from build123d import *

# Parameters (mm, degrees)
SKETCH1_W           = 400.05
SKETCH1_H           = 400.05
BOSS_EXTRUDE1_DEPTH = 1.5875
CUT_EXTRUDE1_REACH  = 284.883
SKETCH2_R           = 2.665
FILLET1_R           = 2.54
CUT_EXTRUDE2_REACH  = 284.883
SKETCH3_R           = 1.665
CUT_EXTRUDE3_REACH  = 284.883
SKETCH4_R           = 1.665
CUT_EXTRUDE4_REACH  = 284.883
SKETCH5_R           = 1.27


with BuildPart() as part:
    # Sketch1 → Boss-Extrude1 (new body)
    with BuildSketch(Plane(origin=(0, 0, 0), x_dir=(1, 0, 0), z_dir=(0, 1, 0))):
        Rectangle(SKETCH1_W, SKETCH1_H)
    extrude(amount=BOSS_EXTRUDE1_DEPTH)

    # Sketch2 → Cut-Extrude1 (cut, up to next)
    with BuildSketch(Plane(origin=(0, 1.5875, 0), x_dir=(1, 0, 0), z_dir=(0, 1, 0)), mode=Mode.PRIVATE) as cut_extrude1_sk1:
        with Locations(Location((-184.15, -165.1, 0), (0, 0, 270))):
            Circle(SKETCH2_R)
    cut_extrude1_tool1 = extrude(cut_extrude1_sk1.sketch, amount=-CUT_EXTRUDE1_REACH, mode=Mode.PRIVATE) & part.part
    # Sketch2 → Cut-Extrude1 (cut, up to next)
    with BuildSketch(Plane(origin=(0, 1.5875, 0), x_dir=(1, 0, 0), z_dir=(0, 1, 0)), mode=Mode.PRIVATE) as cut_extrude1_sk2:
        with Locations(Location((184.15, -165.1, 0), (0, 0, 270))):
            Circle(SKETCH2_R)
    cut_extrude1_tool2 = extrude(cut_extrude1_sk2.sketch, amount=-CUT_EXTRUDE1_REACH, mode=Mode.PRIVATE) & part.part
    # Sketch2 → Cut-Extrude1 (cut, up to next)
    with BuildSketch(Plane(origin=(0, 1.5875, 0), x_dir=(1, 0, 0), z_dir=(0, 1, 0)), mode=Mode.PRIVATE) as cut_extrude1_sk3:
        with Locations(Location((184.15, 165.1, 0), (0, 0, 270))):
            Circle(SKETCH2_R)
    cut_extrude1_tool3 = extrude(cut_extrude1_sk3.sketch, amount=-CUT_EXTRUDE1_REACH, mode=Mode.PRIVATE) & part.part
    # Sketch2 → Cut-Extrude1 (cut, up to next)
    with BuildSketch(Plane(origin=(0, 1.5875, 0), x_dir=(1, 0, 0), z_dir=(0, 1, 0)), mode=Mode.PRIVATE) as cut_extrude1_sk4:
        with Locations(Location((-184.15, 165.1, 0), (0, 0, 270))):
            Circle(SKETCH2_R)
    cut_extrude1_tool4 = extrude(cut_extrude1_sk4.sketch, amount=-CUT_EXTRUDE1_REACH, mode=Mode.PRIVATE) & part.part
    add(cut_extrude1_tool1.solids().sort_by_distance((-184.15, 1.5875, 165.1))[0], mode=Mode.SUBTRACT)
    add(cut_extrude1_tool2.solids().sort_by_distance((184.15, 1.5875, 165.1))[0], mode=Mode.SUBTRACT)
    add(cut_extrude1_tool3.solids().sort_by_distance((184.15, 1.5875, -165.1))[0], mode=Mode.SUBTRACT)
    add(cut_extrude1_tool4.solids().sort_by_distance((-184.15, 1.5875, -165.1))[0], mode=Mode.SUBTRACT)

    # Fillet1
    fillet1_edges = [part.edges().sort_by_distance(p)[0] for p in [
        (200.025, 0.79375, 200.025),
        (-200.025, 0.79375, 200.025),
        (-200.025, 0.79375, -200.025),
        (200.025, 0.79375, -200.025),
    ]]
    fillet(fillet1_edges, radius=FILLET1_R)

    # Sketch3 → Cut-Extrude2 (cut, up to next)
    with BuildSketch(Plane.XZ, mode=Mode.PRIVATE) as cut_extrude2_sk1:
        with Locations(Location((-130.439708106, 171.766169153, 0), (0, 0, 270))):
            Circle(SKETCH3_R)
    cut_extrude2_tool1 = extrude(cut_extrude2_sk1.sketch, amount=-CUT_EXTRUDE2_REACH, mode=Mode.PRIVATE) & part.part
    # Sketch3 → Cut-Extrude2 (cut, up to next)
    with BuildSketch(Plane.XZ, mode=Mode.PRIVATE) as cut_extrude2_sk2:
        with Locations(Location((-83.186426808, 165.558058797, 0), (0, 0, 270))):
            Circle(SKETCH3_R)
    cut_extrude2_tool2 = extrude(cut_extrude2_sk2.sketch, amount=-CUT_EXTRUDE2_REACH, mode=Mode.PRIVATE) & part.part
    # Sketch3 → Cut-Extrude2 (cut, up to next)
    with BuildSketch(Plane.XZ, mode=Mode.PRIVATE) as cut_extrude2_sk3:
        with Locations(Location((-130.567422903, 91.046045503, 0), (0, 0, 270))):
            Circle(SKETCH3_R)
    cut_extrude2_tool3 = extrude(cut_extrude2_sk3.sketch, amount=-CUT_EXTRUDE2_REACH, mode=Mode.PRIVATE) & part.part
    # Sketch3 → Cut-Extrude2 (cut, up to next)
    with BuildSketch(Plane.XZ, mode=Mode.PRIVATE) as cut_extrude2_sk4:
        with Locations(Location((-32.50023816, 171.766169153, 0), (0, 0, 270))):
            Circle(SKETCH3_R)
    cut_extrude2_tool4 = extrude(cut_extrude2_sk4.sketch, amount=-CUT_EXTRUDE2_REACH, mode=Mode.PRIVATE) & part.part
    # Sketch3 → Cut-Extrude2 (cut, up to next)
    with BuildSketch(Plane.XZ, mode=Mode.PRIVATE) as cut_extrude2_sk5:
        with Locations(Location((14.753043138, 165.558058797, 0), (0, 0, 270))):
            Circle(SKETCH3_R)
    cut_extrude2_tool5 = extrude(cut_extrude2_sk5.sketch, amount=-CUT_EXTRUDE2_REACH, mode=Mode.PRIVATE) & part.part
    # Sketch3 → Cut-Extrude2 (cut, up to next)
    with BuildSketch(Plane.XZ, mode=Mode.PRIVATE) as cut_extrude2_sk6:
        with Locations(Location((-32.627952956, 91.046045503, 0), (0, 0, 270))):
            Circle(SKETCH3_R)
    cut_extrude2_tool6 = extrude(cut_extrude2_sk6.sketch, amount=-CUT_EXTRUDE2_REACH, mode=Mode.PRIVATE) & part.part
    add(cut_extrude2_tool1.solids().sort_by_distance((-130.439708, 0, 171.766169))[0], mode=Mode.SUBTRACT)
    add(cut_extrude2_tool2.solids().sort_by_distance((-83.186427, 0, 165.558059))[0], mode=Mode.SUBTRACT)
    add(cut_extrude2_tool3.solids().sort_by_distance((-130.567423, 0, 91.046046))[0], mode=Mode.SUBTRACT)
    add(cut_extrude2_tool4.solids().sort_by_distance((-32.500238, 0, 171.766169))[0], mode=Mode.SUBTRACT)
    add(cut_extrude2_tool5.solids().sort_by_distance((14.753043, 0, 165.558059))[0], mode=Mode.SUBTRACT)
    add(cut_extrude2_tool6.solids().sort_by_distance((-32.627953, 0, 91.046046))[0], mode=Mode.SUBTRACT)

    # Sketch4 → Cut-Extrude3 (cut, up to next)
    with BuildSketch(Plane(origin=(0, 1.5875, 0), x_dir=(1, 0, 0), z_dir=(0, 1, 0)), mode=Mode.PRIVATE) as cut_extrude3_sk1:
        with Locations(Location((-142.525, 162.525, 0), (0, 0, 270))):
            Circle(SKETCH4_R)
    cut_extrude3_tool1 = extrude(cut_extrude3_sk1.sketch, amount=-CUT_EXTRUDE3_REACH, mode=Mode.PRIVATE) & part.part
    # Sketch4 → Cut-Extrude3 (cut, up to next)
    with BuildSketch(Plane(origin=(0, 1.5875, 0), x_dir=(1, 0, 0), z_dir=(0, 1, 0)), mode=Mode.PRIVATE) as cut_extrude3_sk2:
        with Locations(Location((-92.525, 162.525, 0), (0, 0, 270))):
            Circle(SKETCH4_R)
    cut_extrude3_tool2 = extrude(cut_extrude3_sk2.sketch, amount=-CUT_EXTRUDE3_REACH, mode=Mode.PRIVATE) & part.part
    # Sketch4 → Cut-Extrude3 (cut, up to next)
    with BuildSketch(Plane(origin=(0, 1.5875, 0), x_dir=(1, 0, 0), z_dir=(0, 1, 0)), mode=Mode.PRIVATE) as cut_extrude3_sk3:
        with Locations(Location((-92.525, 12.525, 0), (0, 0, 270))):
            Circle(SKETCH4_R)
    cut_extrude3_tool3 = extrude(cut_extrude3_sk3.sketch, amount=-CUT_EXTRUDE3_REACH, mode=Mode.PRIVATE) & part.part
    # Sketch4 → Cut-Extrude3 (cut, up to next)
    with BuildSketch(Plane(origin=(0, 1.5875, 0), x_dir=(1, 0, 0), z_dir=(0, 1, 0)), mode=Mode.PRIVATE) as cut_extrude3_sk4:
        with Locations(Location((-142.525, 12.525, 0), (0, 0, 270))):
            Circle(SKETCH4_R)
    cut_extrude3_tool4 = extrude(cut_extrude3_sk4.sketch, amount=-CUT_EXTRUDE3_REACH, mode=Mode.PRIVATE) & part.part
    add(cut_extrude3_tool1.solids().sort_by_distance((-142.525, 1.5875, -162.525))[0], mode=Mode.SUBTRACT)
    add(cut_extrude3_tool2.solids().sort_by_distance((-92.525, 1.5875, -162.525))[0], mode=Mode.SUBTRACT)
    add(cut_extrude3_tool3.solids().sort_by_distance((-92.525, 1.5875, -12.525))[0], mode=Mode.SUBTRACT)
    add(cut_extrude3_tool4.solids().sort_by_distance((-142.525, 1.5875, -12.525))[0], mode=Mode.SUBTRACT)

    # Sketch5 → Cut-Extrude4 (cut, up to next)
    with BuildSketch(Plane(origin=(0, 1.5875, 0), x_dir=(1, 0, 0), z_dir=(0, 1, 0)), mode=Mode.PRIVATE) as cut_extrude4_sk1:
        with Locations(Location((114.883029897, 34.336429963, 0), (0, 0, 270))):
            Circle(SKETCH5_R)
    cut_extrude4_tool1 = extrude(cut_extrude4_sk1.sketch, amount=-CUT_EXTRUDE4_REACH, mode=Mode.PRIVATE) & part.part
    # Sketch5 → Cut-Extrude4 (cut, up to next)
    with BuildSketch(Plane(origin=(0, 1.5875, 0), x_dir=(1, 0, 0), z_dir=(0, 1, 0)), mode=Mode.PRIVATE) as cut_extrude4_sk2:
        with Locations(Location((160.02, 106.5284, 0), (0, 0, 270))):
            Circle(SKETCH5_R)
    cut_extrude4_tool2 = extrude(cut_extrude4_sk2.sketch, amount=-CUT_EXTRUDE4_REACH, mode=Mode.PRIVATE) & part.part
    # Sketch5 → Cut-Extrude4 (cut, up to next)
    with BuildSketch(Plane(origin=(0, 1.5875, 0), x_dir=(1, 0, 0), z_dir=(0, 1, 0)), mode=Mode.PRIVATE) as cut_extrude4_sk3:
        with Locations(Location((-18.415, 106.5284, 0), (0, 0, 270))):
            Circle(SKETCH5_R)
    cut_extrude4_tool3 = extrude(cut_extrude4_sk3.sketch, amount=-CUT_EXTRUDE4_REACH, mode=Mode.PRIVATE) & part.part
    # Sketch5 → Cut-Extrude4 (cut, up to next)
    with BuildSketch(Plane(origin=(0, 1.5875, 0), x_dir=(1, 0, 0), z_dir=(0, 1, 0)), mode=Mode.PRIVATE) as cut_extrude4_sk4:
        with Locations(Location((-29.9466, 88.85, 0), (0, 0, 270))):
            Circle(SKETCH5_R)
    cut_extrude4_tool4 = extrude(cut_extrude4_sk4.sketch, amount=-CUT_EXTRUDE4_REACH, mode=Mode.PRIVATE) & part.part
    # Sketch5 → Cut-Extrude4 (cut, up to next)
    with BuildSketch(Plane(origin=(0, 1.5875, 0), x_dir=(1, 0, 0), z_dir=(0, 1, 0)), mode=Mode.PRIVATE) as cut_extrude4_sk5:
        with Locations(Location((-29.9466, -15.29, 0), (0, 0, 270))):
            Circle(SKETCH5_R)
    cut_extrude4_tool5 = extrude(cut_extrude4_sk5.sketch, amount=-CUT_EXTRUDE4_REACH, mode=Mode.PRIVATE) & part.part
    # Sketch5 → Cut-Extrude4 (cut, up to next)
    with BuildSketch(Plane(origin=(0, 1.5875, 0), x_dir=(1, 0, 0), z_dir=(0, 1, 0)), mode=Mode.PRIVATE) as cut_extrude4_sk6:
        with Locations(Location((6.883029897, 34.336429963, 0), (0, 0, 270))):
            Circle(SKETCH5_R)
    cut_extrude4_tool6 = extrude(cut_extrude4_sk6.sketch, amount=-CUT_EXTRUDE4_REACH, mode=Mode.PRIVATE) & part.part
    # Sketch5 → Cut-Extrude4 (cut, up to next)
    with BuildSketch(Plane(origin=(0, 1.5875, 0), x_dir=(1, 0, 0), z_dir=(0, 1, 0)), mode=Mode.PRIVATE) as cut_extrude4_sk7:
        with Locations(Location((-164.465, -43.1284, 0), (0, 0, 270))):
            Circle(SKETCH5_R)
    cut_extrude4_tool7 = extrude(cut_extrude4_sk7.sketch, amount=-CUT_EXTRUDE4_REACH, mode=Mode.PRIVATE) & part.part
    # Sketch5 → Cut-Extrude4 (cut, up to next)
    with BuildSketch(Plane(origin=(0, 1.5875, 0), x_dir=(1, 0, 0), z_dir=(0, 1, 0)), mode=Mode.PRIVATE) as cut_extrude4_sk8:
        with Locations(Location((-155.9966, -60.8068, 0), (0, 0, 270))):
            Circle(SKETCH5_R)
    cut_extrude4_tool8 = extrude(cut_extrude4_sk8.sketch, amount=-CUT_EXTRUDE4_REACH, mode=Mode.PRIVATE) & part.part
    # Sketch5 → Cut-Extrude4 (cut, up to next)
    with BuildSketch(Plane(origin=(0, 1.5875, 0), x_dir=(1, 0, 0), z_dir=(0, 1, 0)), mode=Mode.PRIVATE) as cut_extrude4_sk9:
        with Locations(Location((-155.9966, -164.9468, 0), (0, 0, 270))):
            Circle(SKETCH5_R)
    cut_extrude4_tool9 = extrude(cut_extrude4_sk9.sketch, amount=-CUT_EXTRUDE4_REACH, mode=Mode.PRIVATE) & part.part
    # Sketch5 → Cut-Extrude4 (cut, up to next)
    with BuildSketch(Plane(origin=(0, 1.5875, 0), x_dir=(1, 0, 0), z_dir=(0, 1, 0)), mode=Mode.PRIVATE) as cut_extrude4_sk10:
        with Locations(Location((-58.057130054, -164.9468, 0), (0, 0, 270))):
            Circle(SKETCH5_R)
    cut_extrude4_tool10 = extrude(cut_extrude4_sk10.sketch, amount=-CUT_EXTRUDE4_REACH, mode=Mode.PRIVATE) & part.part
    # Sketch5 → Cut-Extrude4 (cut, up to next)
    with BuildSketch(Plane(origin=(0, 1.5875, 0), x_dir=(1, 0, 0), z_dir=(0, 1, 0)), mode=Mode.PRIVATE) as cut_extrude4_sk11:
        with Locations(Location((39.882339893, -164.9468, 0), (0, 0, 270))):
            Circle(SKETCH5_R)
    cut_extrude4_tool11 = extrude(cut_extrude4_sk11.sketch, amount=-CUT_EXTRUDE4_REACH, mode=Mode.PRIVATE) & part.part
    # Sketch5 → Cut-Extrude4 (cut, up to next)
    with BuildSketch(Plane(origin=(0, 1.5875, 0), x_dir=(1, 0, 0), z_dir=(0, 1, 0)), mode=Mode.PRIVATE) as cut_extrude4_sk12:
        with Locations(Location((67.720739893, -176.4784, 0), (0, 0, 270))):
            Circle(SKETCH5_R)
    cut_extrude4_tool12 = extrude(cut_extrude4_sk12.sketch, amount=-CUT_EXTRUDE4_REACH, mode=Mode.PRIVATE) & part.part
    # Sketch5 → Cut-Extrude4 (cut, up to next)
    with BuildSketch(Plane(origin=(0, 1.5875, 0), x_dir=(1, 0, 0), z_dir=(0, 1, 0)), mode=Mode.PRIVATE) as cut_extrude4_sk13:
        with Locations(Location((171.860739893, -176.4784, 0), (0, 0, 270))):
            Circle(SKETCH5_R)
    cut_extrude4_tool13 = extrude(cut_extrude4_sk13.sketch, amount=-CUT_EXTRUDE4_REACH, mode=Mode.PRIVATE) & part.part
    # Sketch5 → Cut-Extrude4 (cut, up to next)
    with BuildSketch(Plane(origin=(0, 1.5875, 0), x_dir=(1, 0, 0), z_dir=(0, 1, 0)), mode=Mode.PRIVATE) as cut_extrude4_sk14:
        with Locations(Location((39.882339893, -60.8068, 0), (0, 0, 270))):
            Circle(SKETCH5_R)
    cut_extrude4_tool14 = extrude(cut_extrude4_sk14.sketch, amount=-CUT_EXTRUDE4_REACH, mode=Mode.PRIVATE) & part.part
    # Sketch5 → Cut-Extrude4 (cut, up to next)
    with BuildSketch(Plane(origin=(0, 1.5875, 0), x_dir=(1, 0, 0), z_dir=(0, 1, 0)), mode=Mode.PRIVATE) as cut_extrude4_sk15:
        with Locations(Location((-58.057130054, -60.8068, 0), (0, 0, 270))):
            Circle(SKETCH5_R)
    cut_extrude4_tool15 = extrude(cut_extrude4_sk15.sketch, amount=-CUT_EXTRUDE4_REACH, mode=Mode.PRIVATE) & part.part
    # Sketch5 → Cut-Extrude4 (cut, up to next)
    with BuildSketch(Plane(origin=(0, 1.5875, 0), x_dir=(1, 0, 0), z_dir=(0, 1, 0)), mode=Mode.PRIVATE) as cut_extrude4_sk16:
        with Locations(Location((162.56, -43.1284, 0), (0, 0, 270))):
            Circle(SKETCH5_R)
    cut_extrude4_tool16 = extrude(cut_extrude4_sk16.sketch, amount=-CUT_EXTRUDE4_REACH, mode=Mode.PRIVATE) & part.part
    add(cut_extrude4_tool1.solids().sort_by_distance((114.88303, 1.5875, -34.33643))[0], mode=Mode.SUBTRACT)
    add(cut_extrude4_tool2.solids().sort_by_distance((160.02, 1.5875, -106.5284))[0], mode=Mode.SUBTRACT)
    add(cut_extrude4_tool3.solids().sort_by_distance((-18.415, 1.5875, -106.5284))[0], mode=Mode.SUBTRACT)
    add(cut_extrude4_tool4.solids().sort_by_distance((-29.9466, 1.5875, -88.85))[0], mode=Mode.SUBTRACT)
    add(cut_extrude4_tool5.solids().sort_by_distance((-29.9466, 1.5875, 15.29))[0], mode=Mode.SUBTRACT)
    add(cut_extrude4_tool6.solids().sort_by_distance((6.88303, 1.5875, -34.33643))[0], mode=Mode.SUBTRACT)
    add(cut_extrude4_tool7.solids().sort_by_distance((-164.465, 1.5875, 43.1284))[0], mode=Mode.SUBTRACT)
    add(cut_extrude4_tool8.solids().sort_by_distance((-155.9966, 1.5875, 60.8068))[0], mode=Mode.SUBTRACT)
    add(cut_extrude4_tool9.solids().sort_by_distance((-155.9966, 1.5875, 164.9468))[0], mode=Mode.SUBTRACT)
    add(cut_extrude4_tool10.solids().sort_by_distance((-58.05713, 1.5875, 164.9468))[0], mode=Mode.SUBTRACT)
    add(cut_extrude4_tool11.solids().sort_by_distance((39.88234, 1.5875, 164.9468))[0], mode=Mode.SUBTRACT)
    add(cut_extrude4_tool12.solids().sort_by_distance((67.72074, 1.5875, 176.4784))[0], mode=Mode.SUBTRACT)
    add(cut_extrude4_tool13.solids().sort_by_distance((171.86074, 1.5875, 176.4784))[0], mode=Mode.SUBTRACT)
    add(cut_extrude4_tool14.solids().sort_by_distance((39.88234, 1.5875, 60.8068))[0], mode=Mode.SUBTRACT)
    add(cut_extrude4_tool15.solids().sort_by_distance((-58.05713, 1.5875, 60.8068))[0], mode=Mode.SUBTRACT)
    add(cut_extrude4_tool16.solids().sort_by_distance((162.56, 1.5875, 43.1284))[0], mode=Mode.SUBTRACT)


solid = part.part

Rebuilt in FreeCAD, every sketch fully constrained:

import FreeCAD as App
import Part
import Sketcher
Q = App.Units.Quantity


def edges_at(feature, points):
    """Names of the edges that pass closest to the given points."""
    edges = feature.Shape.Edges
    near = lambda p: min(range(len(edges)), key=lambda i: edges[i].distToShape(Part.Vertex(*p))[0])
    return sorted({f"Edge{near(p) + 1}" for p in points})


def add_polygon(sketch, points):
    """Adds a closed chain of lines whose ends are joined by coincident constraints."""
    first, n = sketch.GeometryCount, len(points)
    for a, b in zip(points, points[1:] + points[:1]):
        sketch.addGeometry(Part.LineSegment(App.Vector(*a, 0), App.Vector(*b, 0)), False)
    for i in range(n):
        sketch.addConstraint(Sketcher.Constraint("Coincident", first + i, 2, first + (i + 1) % n, 1))

doc = App.newDocument("Part")
body = doc.addObject("PartDesign::Body", "Body")

sketch1 = doc.addObject("Sketcher::SketchObject", "Sketch")
body.addObject(sketch1)
sketch1.AttachmentSupport = (doc.XZ_Plane, [""])
sketch1.MapMode = "FlatFace"
add_polygon(sketch1, [(-200, -200), (-200, 200), (200, 200), (200, -200)])
sketch1.addConstraint([
    Sketcher.Constraint("Vertical", 0),
    Sketcher.Constraint("Horizontal", 1),
    Sketcher.Constraint("Vertical", 2),
    Sketcher.Constraint("Horizontal", 3),
    Sketcher.Constraint("Symmetric", 0, 2, 2, 2, -1, 1),
    Sketcher.Constraint("Equal", 3, 0),
    Sketcher.Constraint("DistanceX", 1, 1, 1, 2, Q("15.75 in")),
])
pad1 = doc.addObject("PartDesign::Pad", "Pad")
body.addObject(pad1)
pad1.Profile = sketch1
pad1.Length = Q("0.0625 in")
pad1.Reversed = True

sketch2 = doc.addObject("Sketcher::SketchObject", "Sketch001")
body.addObject(sketch2)
sketch2.AttachmentSupport = (doc.XZ_Plane, [""])
sketch2.MapMode = "FlatFace"
sketch2.AttachmentOffset = App.Placement(App.Vector(0, 0, -0.0625 * 25.4), App.Rotation())
sketch2.addGeometry(Part.Circle(App.Vector(-184.2, 165.1, 0), App.Vector(0, 0, 1), 2.7), False)
sketch2.addConstraint([
    Sketcher.Constraint("DistanceY", -1, 1, 0, 3, Q("6.5 in")),
    Sketcher.Constraint("Diameter", 0, 5.33),
    Sketcher.Constraint("DistanceX", 0, 3, -1, 1, Q("7.25 in")),
])
pocket1 = doc.addObject("PartDesign::Pocket", "Pocket")
body.addObject(pocket1)
pocket1.Profile = sketch2
pocket1.Type = "UpToFirst"
pocket1.Reversed = True

sketch3 = doc.addObject("Sketcher::SketchObject", "Sketch002")
body.addObject(sketch3)
sketch3.AttachmentSupport = (doc.XZ_Plane, [""])
sketch3.MapMode = "FlatFace"
sketch3.AttachmentOffset = App.Placement(App.Vector(0, 0, -0.0625 * 25.4), App.Rotation())
sketch3.addGeometry(Part.Circle(App.Vector(184.2, 165.1, 0), App.Vector(0, 0, 1), 2.7), False)
sketch3.addConstraint([
    Sketcher.Constraint("DistanceY", -1, 1, 0, 3, Q("6.5 in")),
    Sketcher.Constraint("Diameter", 0, 5.33),
    Sketcher.Constraint("DistanceX", -1, 1, 0, 3, Q("7.25 in")),
])
pocket2 = doc.addObject("PartDesign::Pocket", "Pocket001")
body.addObject(pocket2)
pocket2.Profile = sketch3
pocket2.Type = "UpToFirst"
pocket2.Reversed = True

sketch4 = doc.addObject("Sketcher::SketchObject", "Sketch003")
body.addObject(sketch4)
sketch4.AttachmentSupport = (doc.XZ_Plane, [""])
sketch4.MapMode = "FlatFace"
sketch4.AttachmentOffset = App.Placement(App.Vector(0, 0, -0.0625 * 25.4), App.Rotation())
sketch4.addGeometry(Part.Circle(App.Vector(184.2, -165.1, 0), App.Vector(0, 0, 1), 2.7), False)
sketch4.addConstraint([
    Sketcher.Constraint("DistanceY", 0, 3, -1, 1, Q("6.5 in")),
    Sketcher.Constraint("Diameter", 0, 5.33),
    Sketcher.Constraint("DistanceX", -1, 1, 0, 3, Q("7.25 in")),
])
pocket3 = doc.addObject("PartDesign::Pocket", "Pocket002")
body.addObject(pocket3)
pocket3.Profile = sketch4
pocket3.Type = "UpToFirst"
pocket3.Reversed = True

sketch5 = doc.addObject("Sketcher::SketchObject", "Sketch004")
body.addObject(sketch5)
sketch5.AttachmentSupport = (doc.XZ_Plane, [""])
sketch5.MapMode = "FlatFace"
sketch5.AttachmentOffset = App.Placement(App.Vector(0, 0, -0.0625 * 25.4), App.Rotation())
sketch5.addGeometry(Part.Circle(App.Vector(-184.2, -165.1, 0), App.Vector(0, 0, 1), 2.7), False)
sketch5.addConstraint([
    Sketcher.Constraint("DistanceY", 0, 3, -1, 1, Q("6.5 in")),
    Sketcher.Constraint("Diameter", 0, 5.33),
    Sketcher.Constraint("DistanceX", 0, 3, -1, 1, Q("7.25 in")),
])
pocket4 = doc.addObject("PartDesign::Pocket", "Pocket003")
body.addObject(pocket4)
pocket4.Profile = sketch5
pocket4.Type = "UpToFirst"
pocket4.Reversed = True
doc.recompute()

fillet = doc.addObject("PartDesign::Fillet", "Fillet")
body.addObject(fillet)
fillet.Base = (pocket4, edges_at(pocket4, [
    (200.025, 0.794, 200.025),
    (-200.025, 0.794, 200.025),
    (-200.025, 0.794, -200.025),
    (200.025, 0.794, -200.025),
]))
fillet.Radius = Q("0.1 in")

sketch6 = doc.addObject("Sketcher::SketchObject", "Sketch005")
body.addObject(sketch6)
sketch6.AttachmentSupport = (doc.XZ_Plane, [""])
sketch6.MapMode = "FlatFace"
sketch6.addGeometry(Part.Circle(App.Vector(-130.4, 171.8, 0), App.Vector(0, 0, 1), 1.7), False)
sketch6.addConstraint([
    Sketcher.Constraint("Diameter", 0, 3.33),
    Sketcher.Constraint("DistanceX", 0, 3, -1, 1, 130.439708),
    Sketcher.Constraint("DistanceY", -1, 1, 0, 3, 171.766169),
])
pocket5 = doc.addObject("PartDesign::Pocket", "Pocket004")
body.addObject(pocket5)
pocket5.Profile = sketch6
pocket5.Type = "UpToFirst"

sketch7 = doc.addObject("Sketcher::SketchObject", "Sketch006")
body.addObject(sketch7)
sketch7.AttachmentSupport = (doc.XZ_Plane, [""])
sketch7.MapMode = "FlatFace"
sketch7.addGeometry(Part.Circle(App.Vector(-83.2, 165.6, 0), App.Vector(0, 0, 1), 1.7), False)
sketch7.addConstraint([
    Sketcher.Constraint("Diameter", 0, 3.33),
    Sketcher.Constraint("DistanceY", -1, 1, 0, 3, 165.558059),
    Sketcher.Constraint("DistanceX", 0, 3, -1, 1, 83.186427),
])
pocket6 = doc.addObject("PartDesign::Pocket", "Pocket005")
body.addObject(pocket6)
pocket6.Profile = sketch7
pocket6.Type = "UpToFirst"

sketch8 = doc.addObject("Sketcher::SketchObject", "Sketch007")
body.addObject(sketch8)
sketch8.AttachmentSupport = (doc.XZ_Plane, [""])
sketch8.MapMode = "FlatFace"
sketch8.addGeometry(Part.Circle(App.Vector(-130.6, 91, 0), App.Vector(0, 0, 1), 1.7), False)
sketch8.addConstraint([
    Sketcher.Constraint("Diameter", 0, 3.33),
    Sketcher.Constraint("DistanceX", 0, 3, -1, 1, 130.567423),
    Sketcher.Constraint("DistanceY", -1, 1, 0, 3, 91.046046),
])
pocket7 = doc.addObject("PartDesign::Pocket", "Pocket006")
body.addObject(pocket7)
pocket7.Profile = sketch8
pocket7.Type = "UpToFirst"

sketch9 = doc.addObject("Sketcher::SketchObject", "Sketch008")
body.addObject(sketch9)
sketch9.AttachmentSupport = (doc.XZ_Plane, [""])
sketch9.MapMode = "FlatFace"
sketch9.addGeometry(Part.Circle(App.Vector(-32.5, 171.8, 0), App.Vector(0, 0, 1), 1.7), False)
sketch9.addConstraint([
    Sketcher.Constraint("Diameter", 0, 3.33),
    Sketcher.Constraint("DistanceX", 0, 3, -1, 1, 32.500238),
    Sketcher.Constraint("DistanceY", -1, 1, 0, 3, 171.766169),
])
pocket8 = doc.addObject("PartDesign::Pocket", "Pocket007")
body.addObject(pocket8)
pocket8.Profile = sketch9
pocket8.Type = "UpToFirst"

sketch10 = doc.addObject("Sketcher::SketchObject", "Sketch009")
body.addObject(sketch10)
sketch10.AttachmentSupport = (doc.XZ_Plane, [""])
sketch10.MapMode = "FlatFace"
sketch10.addGeometry(Part.Circle(App.Vector(14.8, 165.6, 0), App.Vector(0, 0, 1), 1.7), False)
sketch10.addConstraint([
    Sketcher.Constraint("Diameter", 0, 3.33),
    Sketcher.Constraint("DistanceY", -1, 1, 0, 3, 165.558059),
    Sketcher.Constraint("DistanceX", -1, 1, 0, 3, 14.753043),
])
pocket9 = doc.addObject("PartDesign::Pocket", "Pocket008")
body.addObject(pocket9)
pocket9.Profile = sketch10
pocket9.Type = "UpToFirst"

sketch11 = doc.addObject("Sketcher::SketchObject", "Sketch010")
body.addObject(sketch11)
sketch11.AttachmentSupport = (doc.XZ_Plane, [""])
sketch11.MapMode = "FlatFace"
sketch11.addGeometry(Part.Circle(App.Vector(-32.6, 91, 0), App.Vector(0, 0, 1), 1.7), False)
sketch11.addConstraint([
    Sketcher.Constraint("Diameter", 0, 3.33),
    Sketcher.Constraint("DistanceX", 0, 3, -1, 1, 32.627953),
    Sketcher.Constraint("DistanceY", -1, 1, 0, 3, 91.046046),
])
pocket10 = doc.addObject("PartDesign::Pocket", "Pocket009")
body.addObject(pocket10)
pocket10.Profile = sketch11
pocket10.Type = "UpToFirst"

sketch12 = doc.addObject("Sketcher::SketchObject", "Sketch011")
body.addObject(sketch12)
sketch12.AttachmentSupport = (doc.XZ_Plane, [""])
sketch12.MapMode = "FlatFace"
sketch12.AttachmentOffset = App.Placement(App.Vector(0, 0, -0.0625 * 25.4), App.Rotation())
sketch12.addGeometry(Part.Circle(App.Vector(-142.5, -162.5, 0), App.Vector(0, 0, 1), 1.7), False)
sketch12.addConstraint([
    Sketcher.Constraint("Diameter", 0, 3.33),
    Sketcher.Constraint("DistanceX", 0, 3, -1, 1, 142.525),
    Sketcher.Constraint("DistanceY", 0, 3, -1, 1, 162.525),
])
pocket11 = doc.addObject("PartDesign::Pocket", "Pocket010")
body.addObject(pocket11)
pocket11.Profile = sketch12
pocket11.Type = "UpToFirst"
pocket11.Reversed = True

sketch13 = doc.addObject("Sketcher::SketchObject", "Sketch012")
body.addObject(sketch13)
sketch13.AttachmentSupport = (doc.XZ_Plane, [""])
sketch13.MapMode = "FlatFace"
sketch13.AttachmentOffset = App.Placement(App.Vector(0, 0, -0.0625 * 25.4), App.Rotation())
sketch13.addGeometry(Part.Circle(App.Vector(-92.5, -162.5, 0), App.Vector(0, 0, 1), 1.7), False)
sketch13.addConstraint([
    Sketcher.Constraint("Diameter", 0, 3.33),
    Sketcher.Constraint("DistanceX", 0, 3, -1, 1, 92.525),
    Sketcher.Constraint("DistanceY", 0, 3, -1, 1, 162.525),
])
pocket12 = doc.addObject("PartDesign::Pocket", "Pocket011")
body.addObject(pocket12)
pocket12.Profile = sketch13
pocket12.Type = "UpToFirst"
pocket12.Reversed = True

sketch14 = doc.addObject("Sketcher::SketchObject", "Sketch013")
body.addObject(sketch14)
sketch14.AttachmentSupport = (doc.XZ_Plane, [""])
sketch14.MapMode = "FlatFace"
sketch14.AttachmentOffset = App.Placement(App.Vector(0, 0, -0.0625 * 25.4), App.Rotation())
sketch14.addGeometry(Part.Circle(App.Vector(-92.5, -12.5, 0), App.Vector(0, 0, 1), 1.7), False)
sketch14.addConstraint([
    Sketcher.Constraint("Diameter", 0, 3.33),
    Sketcher.Constraint("DistanceX", 0, 3, -1, 1, 92.525),
    Sketcher.Constraint("DistanceY", 0, 3, -1, 1, 12.525),
])
pocket13 = doc.addObject("PartDesign::Pocket", "Pocket012")
body.addObject(pocket13)
pocket13.Profile = sketch14
pocket13.Type = "UpToFirst"
pocket13.Reversed = True

sketch15 = doc.addObject("Sketcher::SketchObject", "Sketch014")
body.addObject(sketch15)
sketch15.AttachmentSupport = (doc.XZ_Plane, [""])
sketch15.MapMode = "FlatFace"
sketch15.AttachmentOffset = App.Placement(App.Vector(0, 0, -0.0625 * 25.4), App.Rotation())
sketch15.addGeometry(Part.Circle(App.Vector(-142.5, -12.5, 0), App.Vector(0, 0, 1), 1.7), False)
sketch15.addConstraint([
    Sketcher.Constraint("Diameter", 0, 3.33),
    Sketcher.Constraint("DistanceX", 0, 3, -1, 1, 142.525),
    Sketcher.Constraint("DistanceY", 0, 3, -1, 1, 12.525),
])
pocket14 = doc.addObject("PartDesign::Pocket", "Pocket013")
body.addObject(pocket14)
pocket14.Profile = sketch15
pocket14.Type = "UpToFirst"
pocket14.Reversed = True

sketch16 = doc.addObject("Sketcher::SketchObject", "Sketch015")
body.addObject(sketch16)
sketch16.AttachmentSupport = (doc.XZ_Plane, [""])
sketch16.MapMode = "FlatFace"
sketch16.AttachmentOffset = App.Placement(App.Vector(0, 0, -0.0625 * 25.4), App.Rotation())
sketch16.addGeometry(Part.Circle(App.Vector(114.9, -34.3, 0), App.Vector(0, 0, 1), 1.3), False)
sketch16.addConstraint([
    Sketcher.Constraint("Diameter", 0, Q("0.1 in")),
    Sketcher.Constraint("DistanceX", -1, 1, 0, 3, 114.88303),
    Sketcher.Constraint("DistanceY", 0, 3, -1, 1, 34.33643),
])
pocket15 = doc.addObject("PartDesign::Pocket", "Pocket014")
body.addObject(pocket15)
pocket15.Profile = sketch16
pocket15.Type = "UpToFirst"
pocket15.Reversed = True

sketch17 = doc.addObject("Sketcher::SketchObject", "Sketch016")
body.addObject(sketch17)
sketch17.AttachmentSupport = (doc.XZ_Plane, [""])
sketch17.MapMode = "FlatFace"
sketch17.AttachmentOffset = App.Placement(App.Vector(0, 0, -0.0625 * 25.4), App.Rotation())
sketch17.addGeometry(Part.Circle(App.Vector(160, -106.5, 0), App.Vector(0, 0, 1), 1.3), False)
sketch17.addConstraint([
    Sketcher.Constraint("Diameter", 0, Q("0.1 in")),
    Sketcher.Constraint("DistanceX", -1, 1, 0, 3, Q("6.3 in")),
    Sketcher.Constraint("DistanceY", 0, 3, -1, 1, 106.5284),
])
pocket16 = doc.addObject("PartDesign::Pocket", "Pocket015")
body.addObject(pocket16)
pocket16.Profile = sketch17
pocket16.Type = "UpToFirst"
pocket16.Reversed = True

sketch18 = doc.addObject("Sketcher::SketchObject", "Sketch017")
body.addObject(sketch18)
sketch18.AttachmentSupport = (doc.XZ_Plane, [""])
sketch18.MapMode = "FlatFace"
sketch18.AttachmentOffset = App.Placement(App.Vector(0, 0, -0.0625 * 25.4), App.Rotation())
sketch18.addGeometry(Part.Circle(App.Vector(-18.4, -106.5, 0), App.Vector(0, 0, 1), 1.3), False)
sketch18.addConstraint([
    Sketcher.Constraint("Diameter", 0, Q("0.1 in")),
    Sketcher.Constraint("DistanceX", 0, 3, -1, 1, Q("0.725 in")),
    Sketcher.Constraint("DistanceY", 0, 3, -1, 1, 106.5284),
])
pocket17 = doc.addObject("PartDesign::Pocket", "Pocket016")
body.addObject(pocket17)
pocket17.Profile = sketch18
pocket17.Type = "UpToFirst"
pocket17.Reversed = True

sketch19 = doc.addObject("Sketcher::SketchObject", "Sketch018")
body.addObject(sketch19)
sketch19.AttachmentSupport = (doc.XZ_Plane, [""])
sketch19.MapMode = "FlatFace"
sketch19.AttachmentOffset = App.Placement(App.Vector(0, 0, -0.0625 * 25.4), App.Rotation())
sketch19.addGeometry(Part.Circle(App.Vector(-29.9, -88.8, 0), App.Vector(0, 0, 1), 1.3), False)
sketch19.addConstraint([
    Sketcher.Constraint("Diameter", 0, Q("0.1 in")),
    Sketcher.Constraint("DistanceX", 0, 3, -1, 1, Q("1.179 in")),
    Sketcher.Constraint("DistanceY", 0, 3, -1, 1, 88.85),
])
pocket18 = doc.addObject("PartDesign::Pocket", "Pocket017")
body.addObject(pocket18)
pocket18.Profile = sketch19
pocket18.Type = "UpToFirst"
pocket18.Reversed = True

sketch20 = doc.addObject("Sketcher::SketchObject", "Sketch019")
body.addObject(sketch20)
sketch20.AttachmentSupport = (doc.XZ_Plane, [""])
sketch20.MapMode = "FlatFace"
sketch20.AttachmentOffset = App.Placement(App.Vector(0, 0, -0.0625 * 25.4), App.Rotation())
sketch20.addGeometry(Part.Circle(App.Vector(-29.9, 15.3, 0), App.Vector(0, 0, 1), 1.3), False)
sketch20.addConstraint([
    Sketcher.Constraint("Diameter", 0, Q("0.1 in")),
    Sketcher.Constraint("DistanceX", 0, 3, -1, 1, Q("1.179 in")),
    Sketcher.Constraint("DistanceY", -1, 1, 0, 3, 15.29),
])
pocket19 = doc.addObject("PartDesign::Pocket", "Pocket018")
body.addObject(pocket19)
pocket19.Profile = sketch20
pocket19.Type = "UpToFirst"
pocket19.Reversed = True

sketch21 = doc.addObject("Sketcher::SketchObject", "Sketch020")
body.addObject(sketch21)
sketch21.AttachmentSupport = (doc.XZ_Plane, [""])
sketch21.MapMode = "FlatFace"
sketch21.AttachmentOffset = App.Placement(App.Vector(0, 0, -0.0625 * 25.4), App.Rotation())
sketch21.addGeometry(Part.Circle(App.Vector(6.9, -34.3, 0), App.Vector(0, 0, 1), 1.3), False)
sketch21.addConstraint([
    Sketcher.Constraint("Diameter", 0, Q("0.1 in")),
    Sketcher.Constraint("DistanceX", -1, 1, 0, 3, 6.88303),
    Sketcher.Constraint("DistanceY", 0, 3, -1, 1, 34.33643),
])
pocket20 = doc.addObject("PartDesign::Pocket", "Pocket019")
body.addObject(pocket20)
pocket20.Profile = sketch21
pocket20.Type = "UpToFirst"
pocket20.Reversed = True

sketch22 = doc.addObject("Sketcher::SketchObject", "Sketch021")
body.addObject(sketch22)
sketch22.AttachmentSupport = (doc.XZ_Plane, [""])
sketch22.MapMode = "FlatFace"
sketch22.AttachmentOffset = App.Placement(App.Vector(0, 0, -0.0625 * 25.4), App.Rotation())
sketch22.addGeometry(Part.Circle(App.Vector(-164.5, 43.1, 0), App.Vector(0, 0, 1), 1.3), False)
sketch22.addConstraint([
    Sketcher.Constraint("Diameter", 0, Q("0.1 in")),
    Sketcher.Constraint("DistanceX", 0, 3, -1, 1, Q("6.475 in")),
    Sketcher.Constraint("DistanceY", -1, 1, 0, 3, 43.1284),
])
pocket21 = doc.addObject("PartDesign::Pocket", "Pocket020")
body.addObject(pocket21)
pocket21.Profile = sketch22
pocket21.Type = "UpToFirst"
pocket21.Reversed = True

sketch23 = doc.addObject("Sketcher::SketchObject", "Sketch022")
body.addObject(sketch23)
sketch23.AttachmentSupport = (doc.XZ_Plane, [""])
sketch23.MapMode = "FlatFace"
sketch23.AttachmentOffset = App.Placement(App.Vector(0, 0, -0.0625 * 25.4), App.Rotation())
sketch23.addGeometry(Part.Circle(App.Vector(-156, 60.8, 0), App.Vector(0, 0, 1), 1.3), False)
sketch23.addConstraint([
    Sketcher.Constraint("Diameter", 0, Q("0.1 in")),
    Sketcher.Constraint("DistanceX", 0, 3, -1, 1, 155.9966),
    Sketcher.Constraint("DistanceY", -1, 1, 0, 3, 60.8068),
])
pocket22 = doc.addObject("PartDesign::Pocket", "Pocket021")
body.addObject(pocket22)
pocket22.Profile = sketch23
pocket22.Type = "UpToFirst"
pocket22.Reversed = True

sketch24 = doc.addObject("Sketcher::SketchObject", "Sketch023")
body.addObject(sketch24)
sketch24.AttachmentSupport = (doc.XZ_Plane, [""])
sketch24.MapMode = "FlatFace"
sketch24.AttachmentOffset = App.Placement(App.Vector(0, 0, -0.0625 * 25.4), App.Rotation())
sketch24.addGeometry(Part.Circle(App.Vector(-156, 164.9, 0), App.Vector(0, 0, 1), 1.3), False)
sketch24.addConstraint([
    Sketcher.Constraint("Diameter", 0, Q("0.1 in")),
    Sketcher.Constraint("DistanceX", 0, 3, -1, 1, 155.9966),
    Sketcher.Constraint("DistanceY", -1, 1, 0, 3, 164.9468),
])
pocket23 = doc.addObject("PartDesign::Pocket", "Pocket022")
body.addObject(pocket23)
pocket23.Profile = sketch24
pocket23.Type = "UpToFirst"
pocket23.Reversed = True

sketch25 = doc.addObject("Sketcher::SketchObject", "Sketch024")
body.addObject(sketch25)
sketch25.AttachmentSupport = (doc.XZ_Plane, [""])
sketch25.MapMode = "FlatFace"
sketch25.AttachmentOffset = App.Placement(App.Vector(0, 0, -0.0625 * 25.4), App.Rotation())
sketch25.addGeometry(Part.Circle(App.Vector(-58.1, 164.9, 0), App.Vector(0, 0, 1), 1.3), False)
sketch25.addConstraint([
    Sketcher.Constraint("Diameter", 0, Q("0.1 in")),
    Sketcher.Constraint("DistanceY", -1, 1, 0, 3, 164.9468),
    Sketcher.Constraint("DistanceX", 0, 3, -1, 1, 58.05713),
])
pocket24 = doc.addObject("PartDesign::Pocket", "Pocket023")
body.addObject(pocket24)
pocket24.Profile = sketch25
pocket24.Type = "UpToFirst"
pocket24.Reversed = True

sketch26 = doc.addObject("Sketcher::SketchObject", "Sketch025")
body.addObject(sketch26)
sketch26.AttachmentSupport = (doc.XZ_Plane, [""])
sketch26.MapMode = "FlatFace"
sketch26.AttachmentOffset = App.Placement(App.Vector(0, 0, -0.0625 * 25.4), App.Rotation())
sketch26.addGeometry(Part.Circle(App.Vector(39.9, 164.9, 0), App.Vector(0, 0, 1), 1.3), False)
sketch26.addConstraint([
    Sketcher.Constraint("Diameter", 0, Q("0.1 in")),
    Sketcher.Constraint("DistanceY", -1, 1, 0, 3, 164.9468),
    Sketcher.Constraint("DistanceX", -1, 1, 0, 3, 39.88234),
])
pocket25 = doc.addObject("PartDesign::Pocket", "Pocket024")
body.addObject(pocket25)
pocket25.Profile = sketch26
pocket25.Type = "UpToFirst"
pocket25.Reversed = True

sketch27 = doc.addObject("Sketcher::SketchObject", "Sketch026")
body.addObject(sketch27)
sketch27.AttachmentSupport = (doc.XZ_Plane, [""])
sketch27.MapMode = "FlatFace"
sketch27.AttachmentOffset = App.Placement(App.Vector(0, 0, -0.0625 * 25.4), App.Rotation())
sketch27.addGeometry(Part.Circle(App.Vector(67.7, 176.5, 0), App.Vector(0, 0, 1), 1.3), False)
sketch27.addConstraint([
    Sketcher.Constraint("Diameter", 0, Q("0.1 in")),
    Sketcher.Constraint("DistanceY", -1, 1, 0, 3, 176.4784),
    Sketcher.Constraint("DistanceX", -1, 1, 0, 3, 67.72074),
])
pocket26 = doc.addObject("PartDesign::Pocket", "Pocket025")
body.addObject(pocket26)
pocket26.Profile = sketch27
pocket26.Type = "UpToFirst"
pocket26.Reversed = True

sketch28 = doc.addObject("Sketcher::SketchObject", "Sketch027")
body.addObject(sketch28)
sketch28.AttachmentSupport = (doc.XZ_Plane, [""])
sketch28.MapMode = "FlatFace"
sketch28.AttachmentOffset = App.Placement(App.Vector(0, 0, -0.0625 * 25.4), App.Rotation())
sketch28.addGeometry(Part.Circle(App.Vector(171.9, 176.5, 0), App.Vector(0, 0, 1), 1.3), False)
sketch28.addConstraint([
    Sketcher.Constraint("Diameter", 0, Q("0.1 in")),
    Sketcher.Constraint("DistanceY", -1, 1, 0, 3, 176.4784),
    Sketcher.Constraint("DistanceX", -1, 1, 0, 3, 171.86074),
])
pocket27 = doc.addObject("PartDesign::Pocket", "Pocket026")
body.addObject(pocket27)
pocket27.Profile = sketch28
pocket27.Type = "UpToFirst"
pocket27.Reversed = True

sketch29 = doc.addObject("Sketcher::SketchObject", "Sketch028")
body.addObject(sketch29)
sketch29.AttachmentSupport = (doc.XZ_Plane, [""])
sketch29.MapMode = "FlatFace"
sketch29.AttachmentOffset = App.Placement(App.Vector(0, 0, -0.0625 * 25.4), App.Rotation())
sketch29.addGeometry(Part.Circle(App.Vector(39.9, 60.8, 0), App.Vector(0, 0, 1), 1.3), False)
sketch29.addConstraint([
    Sketcher.Constraint("Diameter", 0, Q("0.1 in")),
    Sketcher.Constraint("DistanceY", -1, 1, 0, 3, 60.8068),
    Sketcher.Constraint("DistanceX", -1, 1, 0, 3, 39.88234),
])
pocket28 = doc.addObject("PartDesign::Pocket", "Pocket027")
body.addObject(pocket28)
pocket28.Profile = sketch29
pocket28.Type = "UpToFirst"
pocket28.Reversed = True

sketch30 = doc.addObject("Sketcher::SketchObject", "Sketch029")
body.addObject(sketch30)
sketch30.AttachmentSupport = (doc.XZ_Plane, [""])
sketch30.MapMode = "FlatFace"
sketch30.AttachmentOffset = App.Placement(App.Vector(0, 0, -0.0625 * 25.4), App.Rotation())
sketch30.addGeometry(Part.Circle(App.Vector(-58.1, 60.8, 0), App.Vector(0, 0, 1), 1.3), False)
sketch30.addConstraint([
    Sketcher.Constraint("Diameter", 0, Q("0.1 in")),
    Sketcher.Constraint("DistanceY", -1, 1, 0, 3, 60.8068),
    Sketcher.Constraint("DistanceX", 0, 3, -1, 1, 58.05713),
])
pocket29 = doc.addObject("PartDesign::Pocket", "Pocket028")
body.addObject(pocket29)
pocket29.Profile = sketch30
pocket29.Type = "UpToFirst"
pocket29.Reversed = True

sketch31 = doc.addObject("Sketcher::SketchObject", "Sketch030")
body.addObject(sketch31)
sketch31.AttachmentSupport = (doc.XZ_Plane, [""])
sketch31.MapMode = "FlatFace"
sketch31.AttachmentOffset = App.Placement(App.Vector(0, 0, -0.0625 * 25.4), App.Rotation())
sketch31.addGeometry(Part.Circle(App.Vector(162.6, 43.1, 0), App.Vector(0, 0, 1), 1.3), False)
sketch31.addConstraint([
    Sketcher.Constraint("Diameter", 0, Q("0.1 in")),
    Sketcher.Constraint("DistanceX", -1, 1, 0, 3, Q("6.4 in")),
    Sketcher.Constraint("DistanceY", -1, 1, 0, 3, 43.1284),
])
pocket30 = doc.addObject("PartDesign::Pocket", "Pocket029")
body.addObject(pocket30)
pocket30.Profile = sketch31
pocket30.Type = "UpToFirst"
pocket30.Reversed = True

doc.recompute()
